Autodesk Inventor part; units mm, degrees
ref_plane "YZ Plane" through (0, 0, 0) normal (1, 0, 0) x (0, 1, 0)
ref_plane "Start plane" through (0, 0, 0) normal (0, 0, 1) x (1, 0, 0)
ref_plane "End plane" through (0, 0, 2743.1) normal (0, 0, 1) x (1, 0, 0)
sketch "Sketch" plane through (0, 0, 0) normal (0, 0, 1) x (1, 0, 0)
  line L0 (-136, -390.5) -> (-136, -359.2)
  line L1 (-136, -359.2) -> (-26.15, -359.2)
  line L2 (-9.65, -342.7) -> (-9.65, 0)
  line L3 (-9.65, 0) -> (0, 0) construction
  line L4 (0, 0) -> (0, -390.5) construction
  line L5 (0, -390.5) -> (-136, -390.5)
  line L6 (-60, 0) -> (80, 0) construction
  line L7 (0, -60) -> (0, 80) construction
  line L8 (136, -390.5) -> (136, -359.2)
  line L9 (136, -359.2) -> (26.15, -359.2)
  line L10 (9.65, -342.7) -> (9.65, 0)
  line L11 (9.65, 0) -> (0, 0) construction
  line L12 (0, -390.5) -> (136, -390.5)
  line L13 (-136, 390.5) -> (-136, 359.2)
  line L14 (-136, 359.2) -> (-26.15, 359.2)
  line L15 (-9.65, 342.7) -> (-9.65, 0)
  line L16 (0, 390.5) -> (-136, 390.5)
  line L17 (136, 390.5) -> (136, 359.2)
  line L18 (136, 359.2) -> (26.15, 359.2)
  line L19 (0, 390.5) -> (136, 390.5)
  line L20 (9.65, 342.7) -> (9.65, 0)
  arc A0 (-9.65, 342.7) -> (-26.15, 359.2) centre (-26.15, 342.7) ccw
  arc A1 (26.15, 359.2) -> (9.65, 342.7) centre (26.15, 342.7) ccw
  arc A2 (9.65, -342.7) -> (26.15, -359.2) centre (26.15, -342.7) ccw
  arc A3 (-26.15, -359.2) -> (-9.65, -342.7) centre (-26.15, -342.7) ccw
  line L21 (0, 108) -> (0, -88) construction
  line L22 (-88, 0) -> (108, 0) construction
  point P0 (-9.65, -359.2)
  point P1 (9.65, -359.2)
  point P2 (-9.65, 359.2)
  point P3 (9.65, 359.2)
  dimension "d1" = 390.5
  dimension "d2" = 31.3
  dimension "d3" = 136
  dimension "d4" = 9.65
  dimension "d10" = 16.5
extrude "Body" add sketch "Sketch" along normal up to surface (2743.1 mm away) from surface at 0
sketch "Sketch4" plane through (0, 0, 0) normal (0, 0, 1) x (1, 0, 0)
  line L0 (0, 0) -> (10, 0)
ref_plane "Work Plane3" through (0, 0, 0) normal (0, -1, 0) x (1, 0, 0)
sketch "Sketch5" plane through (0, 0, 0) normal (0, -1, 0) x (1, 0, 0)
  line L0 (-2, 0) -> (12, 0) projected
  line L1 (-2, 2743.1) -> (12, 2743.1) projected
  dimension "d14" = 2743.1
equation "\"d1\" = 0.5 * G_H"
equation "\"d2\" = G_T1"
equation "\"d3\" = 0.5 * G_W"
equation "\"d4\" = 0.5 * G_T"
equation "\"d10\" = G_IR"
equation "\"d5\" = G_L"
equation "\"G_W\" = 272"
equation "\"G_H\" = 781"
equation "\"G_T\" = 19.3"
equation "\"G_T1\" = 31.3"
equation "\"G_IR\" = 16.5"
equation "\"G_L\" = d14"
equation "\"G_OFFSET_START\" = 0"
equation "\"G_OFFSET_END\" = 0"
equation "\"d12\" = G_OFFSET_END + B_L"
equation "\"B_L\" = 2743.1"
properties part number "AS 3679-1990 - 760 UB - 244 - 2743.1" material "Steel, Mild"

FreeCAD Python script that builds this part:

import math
import FreeCAD as App
import Part
import Sketcher
Q = App.Units.Quantity

doc = App.newDocument("Part")
params = doc.addObject("Spreadsheet::Sheet", "Params")
for row, (alias, value) in enumerate([
    ("sketch1_radius", "16.5 mm"),
    ("sketch1_height", "31.3 mm"),
    ("pad1_length", "2743.1 mm"),
], start=1):
    params.set(f"A{row}", alias)
    params.set(f"B{row}", "=" + value)
    params.setAlias(f"B{row}", alias)

body = doc.addObject("PartDesign::Body", "Body")

# Sketch on XY plane
sketch1 = doc.addObject("Sketcher::SketchObject", "Sketch")
body.addObject(sketch1)
sketch1.AttachmentSupport = (doc.XY_Plane, [""])
sketch1.MapMode = "FlatFace"
sketch1.addGeometry([
    Part.LineSegment(App.Vector(-136, -359.2, 0), App.Vector(-136, -390.5, 0)),  # 0
    Part.LineSegment(App.Vector(-136, -390.5, 0), App.Vector(136, -390.5, 0)),  # 1
    Part.LineSegment(App.Vector(136, -390.5, 0), App.Vector(136, -359.2, 0)),  # 2
    Part.LineSegment(App.Vector(136, -359.2, 0), App.Vector(26.15, -359.2, 0)),  # 3
    Part.ArcOfCircle(Part.Circle(App.Vector(26.15, -342.7, 0), App.Vector(0, 0, 1), 16.5), math.radians(180), math.radians(270)),  # 4
    Part.LineSegment(App.Vector(9.65, -342.7, 0), App.Vector(9.65, 342.7, 0)),  # 5
    Part.ArcOfCircle(Part.Circle(App.Vector(26.15, 342.7, 0), App.Vector(0, 0, 1), 16.5), math.radians(90), math.radians(180)),  # 6
    Part.LineSegment(App.Vector(26.15, 359.2, 0), App.Vector(136, 359.2, 0)),  # 7
    Part.LineSegment(App.Vector(136, 359.2, 0), App.Vector(136, 390.5, 0)),  # 8
    Part.LineSegment(App.Vector(136, 390.5, 0), App.Vector(-136, 390.5, 0)),  # 9
    Part.LineSegment(App.Vector(-136, 390.5, 0), App.Vector(-136, 359.2, 0)),  # 10
    Part.LineSegment(App.Vector(-136, 359.2, 0), App.Vector(-26.15, 359.2, 0)),  # 11
    Part.ArcOfCircle(Part.Circle(App.Vector(-26.15, 342.7, 0), App.Vector(0, 0, 1), 16.5), math.radians(0), math.radians(90)),  # 12
    Part.LineSegment(App.Vector(-9.65, 342.7, 0), App.Vector(-9.65, -342.7, 0)),  # 13
    Part.ArcOfCircle(Part.Circle(App.Vector(-26.15, -342.7, 0), App.Vector(0, 0, 1), 16.5), math.radians(-90), math.radians(0)),  # 14
    Part.LineSegment(App.Vector(-26.15, -359.2, 0), App.Vector(-136, -359.2, 0)),  # 15
], False)
sketch1.addConstraint([
    Sketcher.Constraint("Coincident", 0, 2, 1, 1),
    Sketcher.Constraint("Coincident", 1, 2, 2, 1),
    Sketcher.Constraint("Coincident", 2, 2, 3, 1),
    Sketcher.Constraint("Tangent", 3, 2, 4, 2),
    Sketcher.Constraint("Tangent", 4, 1, 5, 1),
    Sketcher.Constraint("Tangent", 5, 2, 6, 2),
    Sketcher.Constraint("Tangent", 6, 1, 7, 1),
    Sketcher.Constraint("Coincident", 7, 2, 8, 1),
    Sketcher.Constraint("Coincident", 8, 2, 9, 1),
    Sketcher.Constraint("Coincident", 9, 2, 10, 1),
    Sketcher.Constraint("Coincident", 10, 2, 11, 1),
    Sketcher.Constraint("Tangent", 11, 2, 12, 2),
    Sketcher.Constraint("Tangent", 12, 1, 13, 1),
    Sketcher.Constraint("Tangent", 13, 2, 14, 2),
    Sketcher.Constraint("Tangent", 14, 1, 15, 1),
    Sketcher.Constraint("Coincident", 15, 2, 0, 1),
    Sketcher.Constraint("Vertical", 0),
    Sketcher.Constraint("Horizontal", 1),
    Sketcher.Constraint("Vertical", 2),
    Sketcher.Constraint("Horizontal", 3),
    Sketcher.Constraint("Vertical", 5),
    Sketcher.Constraint("Horizontal", 7),
    Sketcher.Constraint("Vertical", 8),
    Sketcher.Constraint("Horizontal", 9),
    Sketcher.Constraint("Vertical", 10),
    Sketcher.Constraint("Horizontal", 11),
    Sketcher.Constraint("Vertical", 13),
    Sketcher.Constraint("Horizontal", 15),
    Sketcher.Constraint("Equal", 4, 6),
    Sketcher.Constraint("Equal", 6, 12),
    Sketcher.Constraint("Equal", 12, 14),
    Sketcher.Constraint("Symmetric", 4, 3, 12, 3, -1, 1),
    Sketcher.Constraint("Symmetric", 0, 2, 8, 2, -1, 1),
    Sketcher.Constraint("Symmetric", 7, 2, 10, 2, -2),
    Sketcher.Constraint("Symmetric", 2, 2, 15, 2, -2),
    Sketcher.Constraint("Radius", 4, Q("16.5 mm")),
    Sketcher.Constraint("DistanceY", 0, 2, 0, 1, Q("31.3 mm")),
    Sketcher.Constraint("DistanceX", 0, 2, -1, 1, Q("136 mm")),
    Sketcher.Constraint("DistanceY", 0, 2, -1, 1, Q("390.5 mm")),
    Sketcher.Constraint("DistanceX", -1, 1, 4, 1, Q("9.65 mm")),
])
sketch1.setExpression("Constraints[35]", "Params.sketch1_radius")
sketch1.setExpression("Constraints[36]", "Params.sketch1_height")
pad1 = doc.addObject("PartDesign::Pad", "Pad")
body.addObject(pad1)
pad1.Profile = sketch1
pad1.setExpression("Length", "Params.pad1_length")

doc.recompute()
